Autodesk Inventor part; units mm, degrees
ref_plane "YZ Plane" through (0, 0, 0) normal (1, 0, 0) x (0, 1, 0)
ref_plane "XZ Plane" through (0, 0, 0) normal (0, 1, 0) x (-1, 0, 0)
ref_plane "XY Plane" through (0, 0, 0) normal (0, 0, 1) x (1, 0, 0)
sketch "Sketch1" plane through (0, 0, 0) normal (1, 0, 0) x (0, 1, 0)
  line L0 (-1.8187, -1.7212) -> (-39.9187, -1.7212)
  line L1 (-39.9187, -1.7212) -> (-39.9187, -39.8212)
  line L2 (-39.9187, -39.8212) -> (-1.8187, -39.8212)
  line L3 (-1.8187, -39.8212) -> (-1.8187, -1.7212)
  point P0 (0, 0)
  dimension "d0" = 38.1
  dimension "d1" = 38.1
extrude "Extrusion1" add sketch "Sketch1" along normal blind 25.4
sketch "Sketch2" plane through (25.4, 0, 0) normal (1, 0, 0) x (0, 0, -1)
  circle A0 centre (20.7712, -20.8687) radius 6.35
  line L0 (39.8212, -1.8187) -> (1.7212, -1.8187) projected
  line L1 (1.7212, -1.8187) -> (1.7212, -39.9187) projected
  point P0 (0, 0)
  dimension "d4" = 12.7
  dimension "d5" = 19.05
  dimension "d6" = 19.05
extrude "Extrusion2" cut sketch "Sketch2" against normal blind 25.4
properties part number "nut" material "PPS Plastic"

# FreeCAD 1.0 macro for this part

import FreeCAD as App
import Part
import Sketcher

V = App.Vector
Q = App.Units.Quantity

doc = App.newDocument("Part")
body = doc.addObject("PartDesign::Body", "Body")

# Sketch on YZ plane
sketch1 = body.newObject("Sketcher::SketchObject", "Sketch")
sketch1.AttachmentSupport = (doc.getObject("YZ_Plane"), [""])
sketch1.MapMode = "FlatFace"
sketch1.addGeometry([
    Part.LineSegment(V(-2, -40, 0), V(-2, -2, 0)),
    Part.LineSegment(V(-2, -2, 0), V(-40, -2, 0)),
    Part.LineSegment(V(-40, -2, 0), V(-40, -40, 0)),
    Part.LineSegment(V(-40, -40, 0), V(-2, -40, 0)),
], False)
sketch1.addConstraint([
    Sketcher.Constraint("Coincident", 0, 2, 1, 1),
    Sketcher.Constraint("Coincident", 1, 2, 2, 1),
    Sketcher.Constraint("Coincident", 2, 2, 3, 1),
    Sketcher.Constraint("Coincident", 3, 2, 0, 1),
    Sketcher.Constraint("Vertical", 0),
    Sketcher.Constraint("Horizontal", 1),
    Sketcher.Constraint("Vertical", 2),
    Sketcher.Constraint("Horizontal", 3),
    Sketcher.Constraint("Equal", 3, 0),
    Sketcher.Constraint("DistanceX", 1, 2, 1, 1, Q("1.5 in")),
    Sketcher.Constraint("DistanceX", 0, 2, -1, 1, Q("0.0716 in")),
    Sketcher.Constraint("DistanceY", 0, 2, -1, 1, Q("1.7212 mm")),
])
pad1 = body.newObject("PartDesign::Pad", "Pad")
pad1.Profile = sketch1
pad1.Length = Q("1 in")

# Sketch on YZ plane
sketch2 = body.newObject("Sketcher::SketchObject", "Sketch001")
sketch2.AttachmentSupport = (doc.getObject("YZ_Plane"), [""])
sketch2.MapMode = "FlatFace"
sketch2.AttachmentOffset = App.Placement(V(0, 0, 1 * 25.4), App.Rotation())
sketch2.addGeometry(Part.Circle(V(-21, -21, 0), V(0, 0, 1), 6), False)
sketch2.addConstraint([
    Sketcher.Constraint("Diameter", 0, Q("0.5 in")),
    Sketcher.Constraint("DistanceX", 0, 3, -1, 1, Q("0.8216 in")),
    Sketcher.Constraint("DistanceY", 0, 3, -1, 1, Q("20.7712 mm")),
])
pocket1 = body.newObject("PartDesign::Pocket", "Pocket")
pocket1.Profile = sketch2
pocket1.Length = Q("1 in")

doc.recompute()
